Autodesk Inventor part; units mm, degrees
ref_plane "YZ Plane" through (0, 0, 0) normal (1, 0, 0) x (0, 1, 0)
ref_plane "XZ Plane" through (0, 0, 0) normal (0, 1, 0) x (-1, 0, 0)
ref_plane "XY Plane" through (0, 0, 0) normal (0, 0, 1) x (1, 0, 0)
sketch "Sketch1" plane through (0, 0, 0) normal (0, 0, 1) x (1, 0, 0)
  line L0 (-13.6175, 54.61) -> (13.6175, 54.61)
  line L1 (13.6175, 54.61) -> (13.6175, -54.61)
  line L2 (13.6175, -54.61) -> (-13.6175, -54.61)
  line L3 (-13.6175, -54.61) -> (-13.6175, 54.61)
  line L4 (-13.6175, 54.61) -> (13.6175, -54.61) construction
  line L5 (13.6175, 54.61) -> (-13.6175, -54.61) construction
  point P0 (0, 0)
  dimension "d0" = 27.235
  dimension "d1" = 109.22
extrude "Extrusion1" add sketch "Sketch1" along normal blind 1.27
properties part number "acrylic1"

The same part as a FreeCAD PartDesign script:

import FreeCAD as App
import Part
import Sketcher
Q = App.Units.Quantity

doc = App.newDocument("Part")
body = doc.addObject("PartDesign::Body", "Body")

# Sketch on XY plane
sketch1 = body.newObject("Sketcher::SketchObject", "Sketch")
sketch1.AttachmentSupport = (doc.getObject("XY_Plane"), [""])
sketch1.MapMode = "FlatFace"
sketch1.addGeometry([
    Part.LineSegment(App.Vector(14, 55, 0), App.Vector(-14, 55, 0)),
    Part.LineSegment(App.Vector(-14, 55, 0), App.Vector(-14, -55, 0)),
    Part.LineSegment(App.Vector(-14, -55, 0), App.Vector(14, -55, 0)),
    Part.LineSegment(App.Vector(14, -55, 0), App.Vector(14, 55, 0)),
], False)
sketch1.addConstraint([
    Sketcher.Constraint("Coincident", 0, 2, 1, 1),
    Sketcher.Constraint("Coincident", 1, 2, 2, 1),
    Sketcher.Constraint("Coincident", 2, 2, 3, 1),
    Sketcher.Constraint("Coincident", 3, 2, 0, 1),
    Sketcher.Constraint("Horizontal", 0),
    Sketcher.Constraint("Vertical", 1),
    Sketcher.Constraint("Horizontal", 2),
    Sketcher.Constraint("Vertical", 3),
    Sketcher.Constraint("Symmetric", 0, 2, 2, 2, -1, 1),
    Sketcher.Constraint("DistanceY", 1, 2, 1, 1, Q("4.3 in")),
    Sketcher.Constraint("DistanceX", 0, 2, 0, 1, Q("27.235 mm")),
])
pad1 = body.newObject("PartDesign::Pad", "Pad")
pad1.Profile = sketch1
pad1.Length = Q("0.05 in")

doc.recompute()
